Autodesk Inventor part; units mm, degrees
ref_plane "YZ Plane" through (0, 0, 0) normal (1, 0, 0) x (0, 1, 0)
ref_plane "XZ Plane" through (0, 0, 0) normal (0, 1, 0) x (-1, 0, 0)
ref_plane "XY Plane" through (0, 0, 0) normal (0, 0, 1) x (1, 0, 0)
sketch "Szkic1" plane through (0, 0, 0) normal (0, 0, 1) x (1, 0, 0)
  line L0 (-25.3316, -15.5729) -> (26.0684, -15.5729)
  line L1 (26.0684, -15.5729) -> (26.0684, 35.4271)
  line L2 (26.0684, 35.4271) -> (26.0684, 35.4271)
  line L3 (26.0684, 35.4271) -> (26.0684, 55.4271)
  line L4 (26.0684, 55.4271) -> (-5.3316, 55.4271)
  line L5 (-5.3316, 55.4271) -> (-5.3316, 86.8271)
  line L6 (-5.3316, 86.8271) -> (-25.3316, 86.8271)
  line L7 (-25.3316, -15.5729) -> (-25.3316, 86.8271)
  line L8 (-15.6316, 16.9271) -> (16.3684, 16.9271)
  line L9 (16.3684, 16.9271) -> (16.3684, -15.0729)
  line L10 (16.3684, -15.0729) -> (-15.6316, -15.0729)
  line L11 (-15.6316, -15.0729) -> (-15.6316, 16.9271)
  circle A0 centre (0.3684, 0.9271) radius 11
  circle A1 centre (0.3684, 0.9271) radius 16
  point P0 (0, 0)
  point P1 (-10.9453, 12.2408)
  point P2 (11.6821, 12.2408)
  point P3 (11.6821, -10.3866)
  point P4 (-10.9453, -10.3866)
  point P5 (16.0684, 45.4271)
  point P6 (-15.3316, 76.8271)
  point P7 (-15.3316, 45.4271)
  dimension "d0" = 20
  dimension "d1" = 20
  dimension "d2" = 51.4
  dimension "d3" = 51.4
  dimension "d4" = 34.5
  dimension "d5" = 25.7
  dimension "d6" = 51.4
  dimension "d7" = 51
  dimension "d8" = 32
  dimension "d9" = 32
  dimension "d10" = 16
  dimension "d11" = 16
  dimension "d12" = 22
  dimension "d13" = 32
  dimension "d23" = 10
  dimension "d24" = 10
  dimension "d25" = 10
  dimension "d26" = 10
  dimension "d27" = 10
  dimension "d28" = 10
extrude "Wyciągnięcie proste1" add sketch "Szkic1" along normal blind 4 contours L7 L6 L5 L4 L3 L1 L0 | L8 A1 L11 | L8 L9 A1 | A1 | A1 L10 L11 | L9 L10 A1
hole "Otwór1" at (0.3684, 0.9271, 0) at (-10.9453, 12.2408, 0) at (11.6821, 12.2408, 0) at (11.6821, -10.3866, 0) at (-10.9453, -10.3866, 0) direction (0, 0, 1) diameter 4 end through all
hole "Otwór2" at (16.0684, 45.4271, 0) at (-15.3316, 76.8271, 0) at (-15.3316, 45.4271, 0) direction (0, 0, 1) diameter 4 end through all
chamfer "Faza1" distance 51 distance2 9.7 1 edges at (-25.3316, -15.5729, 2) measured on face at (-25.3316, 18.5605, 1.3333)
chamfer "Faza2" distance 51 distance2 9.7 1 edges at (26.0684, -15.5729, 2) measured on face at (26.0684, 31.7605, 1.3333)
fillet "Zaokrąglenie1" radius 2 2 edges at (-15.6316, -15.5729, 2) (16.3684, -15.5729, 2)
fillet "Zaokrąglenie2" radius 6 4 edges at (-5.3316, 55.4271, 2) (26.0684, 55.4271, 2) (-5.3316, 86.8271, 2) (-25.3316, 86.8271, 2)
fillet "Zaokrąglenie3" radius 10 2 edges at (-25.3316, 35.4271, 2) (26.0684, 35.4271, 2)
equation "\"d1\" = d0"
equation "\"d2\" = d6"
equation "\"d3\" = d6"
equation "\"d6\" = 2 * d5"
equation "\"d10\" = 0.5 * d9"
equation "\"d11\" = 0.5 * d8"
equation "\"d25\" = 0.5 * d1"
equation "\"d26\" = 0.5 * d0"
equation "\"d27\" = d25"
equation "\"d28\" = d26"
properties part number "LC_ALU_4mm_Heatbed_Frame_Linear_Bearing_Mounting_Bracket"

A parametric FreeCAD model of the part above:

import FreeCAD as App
import Part
import Sketcher
Q = App.Units.Quantity


def edges_at(feature, points):
    """Names of the edges that pass closest to the given points."""
    edges = feature.Shape.Edges
    near = lambda p: min(range(len(edges)), key=lambda i: edges[i].distToShape(Part.Vertex(*p))[0])
    return sorted({f"Edge{near(p) + 1}" for p in points})

doc = App.newDocument("Part")
params = doc.addObject("Spreadsheet::Sheet", "Params")
for row, (alias, value) in enumerate([
    ("sketch1_diameter", "22 mm"),
    ("sketch1_width", "20 mm"),
    ("sketch1_width2", "51.4 mm"),
    ("sketch1_height", "71 mm"),
    ("pad1_length", "4 mm"),
    ("sketch2_diameter", "4 mm"),
    ("hole_diameter", "4 mm"),
    ("sketch3_diameter", "4 mm"),
    ("hole2_diameter", "4 mm"),
    ("chamfer_size", "51 mm"),
    ("chamfer_size2", "9.7 mm"),
    ("chamfer2_size", "51 mm"),
    ("chamfer2_size2", "9.7 mm"),
    ("fillet_radius", "2 mm"),
    ("fillet2_radius", "6 mm"),
    ("fillet3_radius", "10 mm"),
], start=1):
    params.set(f"A{row}", alias)
    params.set(f"B{row}", "=" + value)
    params.setAlias(f"B{row}", alias)

body = doc.addObject("PartDesign::Body", "Body")

# Sketch on XY plane
sketch1 = body.newObject("Sketcher::SketchObject", "Sketch")
sketch1.AttachmentSupport = (doc.getObject("XY_Plane"), [""])
sketch1.MapMode = "FlatFace"
sketch1.addGeometry([
    Part.LineSegment(App.Vector(-25, 87, 0), App.Vector(-25, -16, 0)),  # 0
    Part.LineSegment(App.Vector(-25, -16, 0), App.Vector(26, -16, 0)),  # 1
    Part.LineSegment(App.Vector(26, -16, 0), App.Vector(26, 55, 0)),  # 2
    Part.LineSegment(App.Vector(26, 55, 0), App.Vector(-5, 55, 0)),  # 3
    Part.LineSegment(App.Vector(-5, 55, 0), App.Vector(-5, 87, 0)),  # 4
    Part.LineSegment(App.Vector(-5, 87, 0), App.Vector(-25, 87, 0)),  # 5
    Part.Circle(App.Vector(0, 1, 0), App.Vector(0, 0, 1), 11),  # 6
], False)
sketch1.addConstraint([
    Sketcher.Constraint("Coincident", 0, 2, 1, 1),
    Sketcher.Constraint("Coincident", 1, 2, 2, 1),
    Sketcher.Constraint("Coincident", 2, 2, 3, 1),
    Sketcher.Constraint("Coincident", 3, 2, 4, 1),
    Sketcher.Constraint("Coincident", 4, 2, 5, 1),
    Sketcher.Constraint("Coincident", 5, 2, 0, 1),
    Sketcher.Constraint("Vertical", 0),
    Sketcher.Constraint("Horizontal", 1),
    Sketcher.Constraint("Vertical", 2),
    Sketcher.Constraint("Horizontal", 3),
    Sketcher.Constraint("Vertical", 4),
    Sketcher.Constraint("Horizontal", 5),
    Sketcher.Constraint("Equal", 3, 4),
    Sketcher.Constraint("Diameter", 6, Q("22 mm")),
    Sketcher.Constraint("DistanceX", 5, 2, 5, 1, Q("20 mm")),
    Sketcher.Constraint("DistanceX", 1, 1, 1, 2, Q("51.4 mm")),
    Sketcher.Constraint("DistanceX", 0, 2, 6, 3, Q("25.7 mm")),
    Sketcher.Constraint("DistanceY", 2, 1, 2, 2, Q("71 mm")),
    Sketcher.Constraint("DistanceY", 0, 2, 6, 3, Q("16.5 mm")),
    Sketcher.Constraint("DistanceY", -1, 1, 6, 3, Q("0.927 mm")),
    Sketcher.Constraint("DistanceX", -1, 1, 6, 3, Q("0.3684 mm")),
])
sketch1.setExpression("Constraints[13]", "Params.sketch1_diameter")
sketch1.setExpression("Constraints[14]", "Params.sketch1_width")
sketch1.setExpression("Constraints[15]", "Params.sketch1_width2")
sketch1.setExpression("Constraints[17]", "Params.sketch1_height")
pad1 = body.newObject("PartDesign::Pad", "Pad")
pad1.Profile = sketch1
pad1.setExpression("Length", "Params.pad1_length")

# Sketch on XY plane
sketch2 = body.newObject("Sketcher::SketchObject", "Sketch001")
sketch2.AttachmentSupport = (doc.getObject("XY_Plane"), [""])
sketch2.MapMode = "FlatFace"
sketch2.addGeometry([
    Part.Circle(App.Vector(0.4, 0.9, 0), App.Vector(0, 0, 1), 2),  # 0
    Part.Circle(App.Vector(-10.9, 12.2, 0), App.Vector(0, 0, 1), 2),  # 1
    Part.Circle(App.Vector(11.7, 12.2, 0), App.Vector(0, 0, 1), 2),  # 2
    Part.Circle(App.Vector(11.7, -10.4, 0), App.Vector(0, 0, 1), 2),  # 3
    Part.Circle(App.Vector(-10.9, -10.4, 0), App.Vector(0, 0, 1), 2),  # 4
], False)
sketch2.addConstraint([
    Sketcher.Constraint("Equal", 0, 1),
    Sketcher.Constraint("Equal", 1, 2),
    Sketcher.Constraint("Equal", 2, 3),
    Sketcher.Constraint("Equal", 3, 4),
    Sketcher.Constraint("Horizontal", 1, 3, 2, 3),
    Sketcher.Constraint("Horizontal", 3, 3, 4, 3),
    Sketcher.Constraint("Vertical", 2, 3, 3, 3),
    Sketcher.Constraint("Vertical", 1, 3, 4, 3),
    Sketcher.Constraint("Diameter", 0, Q("4 mm")),
    Sketcher.Constraint("DistanceY", -1, 1, 0, 3, Q("0.927 mm")),
    Sketcher.Constraint("DistanceX", -1, 1, 2, 3, Q("11.682 mm")),
    Sketcher.Constraint("DistanceX", -1, 1, 0, 3, Q("0.3684 mm")),
    Sketcher.Constraint("DistanceX", 1, 3, -1, 1, Q("10.9453 mm")),
    Sketcher.Constraint("DistanceY", -1, 1, 1, 3, Q("12.2408 mm")),
    Sketcher.Constraint("DistanceY", 3, 3, -1, 1, Q("10.3866 mm")),
])
sketch2.setExpression("Constraints[8]", "Params.sketch2_diameter")
doc.recompute()
hole = body.newObject("PartDesign::Hole", "Hole")
hole.Profile = sketch2
hole.ThreadType = "None"
hole.setExpression("Diameter", "Params.hole_diameter")
hole.DepthType = "ThroughAll"
hole.Reversed = True

# Sketch on XY plane
sketch3 = body.newObject("Sketcher::SketchObject", "Sketch002")
sketch3.AttachmentSupport = (doc.getObject("XY_Plane"), [""])
sketch3.MapMode = "FlatFace"
sketch3.addGeometry([
    Part.Circle(App.Vector(16.1, 45.4, 0), App.Vector(0, 0, 1), 2),
    Part.Circle(App.Vector(-15.3, 76.8, 0), App.Vector(0, 0, 1), 2),
    Part.Circle(App.Vector(-15.3, 45.4, 0), App.Vector(0, 0, 1), 2),
], False)
sketch3.addConstraint([
    Sketcher.Constraint("Equal", 0, 1),
    Sketcher.Constraint("Equal", 1, 2),
    Sketcher.Constraint("Horizontal", 0, 3, 2, 3),
    Sketcher.Constraint("Vertical", 1, 3, 2, 3),
    Sketcher.Constraint("Diameter", 0, Q("4 mm")),
    Sketcher.Constraint("DistanceX", 1, 3, 0, 3, Q("31.4 mm")),
    Sketcher.Constraint("DistanceY", 0, 3, 1, 3, Q("31.4 mm")),
    Sketcher.Constraint("DistanceY", -1, 1, 0, 3, Q("45.427 mm")),
    Sketcher.Constraint("DistanceX", -1, 1, 0, 3, Q("16.0684 mm")),
])
sketch3.setExpression("Constraints[4]", "Params.sketch3_diameter")
doc.recompute()
hole2 = body.newObject("PartDesign::Hole", "Hole001")
hole2.Profile = sketch3
hole2.ThreadType = "None"
hole2.setExpression("Diameter", "Params.hole2_diameter")
hole2.DepthType = "ThroughAll"
hole2.Reversed = True
doc.recompute()

chamfer = body.newObject("PartDesign::Chamfer", "Chamfer")
chamfer.Base = (hole2, edges_at(hole2, [(-25.332, -15.573, 2)]))
chamfer.ChamferType = "Two distances"
chamfer.setExpression("Size", "Params.chamfer_size")
chamfer.setExpression("Size2", "Params.chamfer_size2")
doc.recompute()

chamfer2 = body.newObject("PartDesign::Chamfer", "Chamfer001")
chamfer2.Base = (chamfer, edges_at(chamfer, [(26.068, -15.573, 2)]))
chamfer2.ChamferType = "Two distances"
chamfer2.setExpression("Size", "Params.chamfer2_size")
chamfer2.setExpression("Size2", "Params.chamfer2_size2")
chamfer2.FlipDirection = True
doc.recompute()

fillet = body.newObject("PartDesign::Fillet", "Fillet")
fillet.Base = (chamfer2, edges_at(chamfer2, [(-15.632, -15.573, 2), (16.368, -15.573, 2)]))
fillet.setExpression("Radius", "Params.fillet_radius")
doc.recompute()

fillet2 = body.newObject("PartDesign::Fillet", "Fillet001")
fillet2.Base = (fillet, edges_at(fillet, [
    (-5.332, 55.427, 2),
    (26.068, 55.427, 2),
    (-5.332, 86.827, 2),
    (-25.332, 86.827, 2),
]))
fillet2.setExpression("Radius", "Params.fillet2_radius")
doc.recompute()

fillet3 = body.newObject("PartDesign::Fillet", "Fillet002")
fillet3.Base = (fillet2, edges_at(fillet2, [(-25.332, 35.427, 2), (26.068, 35.427, 2)]))
fillet3.setExpression("Radius", "Params.fillet3_radius")

doc.recompute()
